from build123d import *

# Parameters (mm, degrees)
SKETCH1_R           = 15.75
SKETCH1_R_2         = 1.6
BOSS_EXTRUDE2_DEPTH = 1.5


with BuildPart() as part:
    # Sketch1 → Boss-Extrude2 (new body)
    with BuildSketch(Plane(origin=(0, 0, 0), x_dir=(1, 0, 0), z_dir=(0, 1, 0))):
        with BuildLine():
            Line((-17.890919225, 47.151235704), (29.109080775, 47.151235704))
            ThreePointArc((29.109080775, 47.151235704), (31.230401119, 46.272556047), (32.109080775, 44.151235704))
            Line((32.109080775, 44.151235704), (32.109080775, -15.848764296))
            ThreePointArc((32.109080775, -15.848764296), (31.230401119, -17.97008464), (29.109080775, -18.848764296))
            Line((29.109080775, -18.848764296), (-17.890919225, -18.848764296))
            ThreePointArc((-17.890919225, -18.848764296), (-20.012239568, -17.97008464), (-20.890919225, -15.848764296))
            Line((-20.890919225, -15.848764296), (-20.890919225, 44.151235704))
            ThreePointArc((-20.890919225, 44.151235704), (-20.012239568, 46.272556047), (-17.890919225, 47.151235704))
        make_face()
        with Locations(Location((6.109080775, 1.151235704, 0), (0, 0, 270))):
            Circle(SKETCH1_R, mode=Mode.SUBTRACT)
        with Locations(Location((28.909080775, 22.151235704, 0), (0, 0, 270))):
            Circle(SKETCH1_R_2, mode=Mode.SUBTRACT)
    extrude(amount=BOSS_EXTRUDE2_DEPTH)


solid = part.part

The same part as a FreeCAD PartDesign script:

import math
import FreeCAD as App
import Part
import Sketcher

V = App.Vector

doc = App.newDocument("Part")
body = doc.addObject("PartDesign::Body", "Body")

# Sketch on XZ plane
sketch1 = body.newObject("Sketcher::SketchObject", "Sketch")
sketch1.AttachmentSupport = (doc.getObject("XZ_Plane"), [""])
sketch1.MapMode = "FlatFace"
sketch1.addGeometry(Part.LineSegment(V(29.1, -47.2, 0), V(-17.9, -47.2, 0)), False)
sketch1.addGeometry(Part.ArcOfCircle(Part.Circle(V(-17.9, -44.2, 0), V(0, 0, 1), 3), math.radians(-180), math.radians(-90)), False)
sketch1.addGeometry(Part.LineSegment(V(-20.9, -44.2, 0), V(-20.9, 15.8, 0)), False)
sketch1.addGeometry(Part.ArcOfCircle(Part.Circle(V(-17.9, 15.8, 0), V(0, 0, 1), 3), math.radians(90), math.radians(180)), False)
sketch1.addGeometry(Part.LineSegment(V(-17.9, 18.8, 0), V(29.1, 18.8, 0)), False)
sketch1.addGeometry(Part.ArcOfCircle(Part.Circle(V(29.1, 15.8, 0), V(0, 0, 1), 3), math.radians(0), math.radians(90)), False)
sketch1.addGeometry(Part.LineSegment(V(32.1, 15.8, 0), V(32.1, -44.2, 0)), False)
sketch1.addGeometry(Part.ArcOfCircle(Part.Circle(V(29.1, -44.2, 0), V(0, 0, 1), 3), math.radians(-90), math.radians(0)), False)
sketch1.addGeometry(Part.Circle(V(6.1, -1.2, 0), V(0, 0, 1), 15.8), False)
sketch1.addGeometry(Part.Circle(V(28.9, -22.2, 0), V(0, 0, 1), 1.6), False)
sketch1.addConstraint(Sketcher.Constraint("Tangent", 0, 2, 1, 2))
sketch1.addConstraint(Sketcher.Constraint("Tangent", 1, 1, 2, 1))
sketch1.addConstraint(Sketcher.Constraint("Tangent", 2, 2, 3, 2))
sketch1.addConstraint(Sketcher.Constraint("Tangent", 3, 1, 4, 1))
sketch1.addConstraint(Sketcher.Constraint("Tangent", 4, 2, 5, 2))
sketch1.addConstraint(Sketcher.Constraint("Tangent", 5, 1, 6, 1))
sketch1.addConstraint(Sketcher.Constraint("Tangent", 6, 2, 7, 2))
sketch1.addConstraint(Sketcher.Constraint("Tangent", 7, 1, 0, 1))
sketch1.addConstraint(Sketcher.Constraint("Horizontal", 0))
sketch1.addConstraint(Sketcher.Constraint("Vertical", 2))
sketch1.addConstraint(Sketcher.Constraint("Horizontal", 4))
sketch1.addConstraint(Sketcher.Constraint("Vertical", 6))
sketch1.addConstraint(Sketcher.Constraint("Equal", 1, 3))
sketch1.addConstraint(Sketcher.Constraint("Equal", 3, 5))
sketch1.addConstraint(Sketcher.Constraint("Equal", 5, 7))
sketch1.addConstraint(Sketcher.Constraint("Radius", 1, 3.0))
sketch1.addConstraint(Sketcher.Constraint("Diameter", 8, 31.5))
sketch1.addConstraint(Sketcher.Constraint("Diameter", 9, 3.2))
sketch1.addConstraint(Sketcher.Constraint("DistanceX", 0, 2, 0, 1, 47.0))
sketch1.addConstraint(Sketcher.Constraint("DistanceY", 2, 1, 2, 2, 60.0))
sketch1.addConstraint(Sketcher.Constraint("DistanceX", 8, 3, 5, 3, 23.0))
sketch1.addConstraint(Sketcher.Constraint("DistanceY", 8, 3, 5, 3, 17.0))
sketch1.addConstraint(Sketcher.Constraint("DistanceY", 7, 3, 9, 3, 22.0))
sketch1.addConstraint(Sketcher.Constraint("DistanceX", 9, 3, 7, 3, 0.2))
sketch1.addConstraint(Sketcher.Constraint("DistanceX", 1, 3, -1, 1, 17.890919))
sketch1.addConstraint(Sketcher.Constraint("DistanceY", 1, 3, -1, 1, 44.151236))
pad1 = body.newObject("PartDesign::Pad", "Pad")
pad1.Profile = sketch1
pad1.Length = 1.5
pad1.Reversed = True

doc.recompute()
